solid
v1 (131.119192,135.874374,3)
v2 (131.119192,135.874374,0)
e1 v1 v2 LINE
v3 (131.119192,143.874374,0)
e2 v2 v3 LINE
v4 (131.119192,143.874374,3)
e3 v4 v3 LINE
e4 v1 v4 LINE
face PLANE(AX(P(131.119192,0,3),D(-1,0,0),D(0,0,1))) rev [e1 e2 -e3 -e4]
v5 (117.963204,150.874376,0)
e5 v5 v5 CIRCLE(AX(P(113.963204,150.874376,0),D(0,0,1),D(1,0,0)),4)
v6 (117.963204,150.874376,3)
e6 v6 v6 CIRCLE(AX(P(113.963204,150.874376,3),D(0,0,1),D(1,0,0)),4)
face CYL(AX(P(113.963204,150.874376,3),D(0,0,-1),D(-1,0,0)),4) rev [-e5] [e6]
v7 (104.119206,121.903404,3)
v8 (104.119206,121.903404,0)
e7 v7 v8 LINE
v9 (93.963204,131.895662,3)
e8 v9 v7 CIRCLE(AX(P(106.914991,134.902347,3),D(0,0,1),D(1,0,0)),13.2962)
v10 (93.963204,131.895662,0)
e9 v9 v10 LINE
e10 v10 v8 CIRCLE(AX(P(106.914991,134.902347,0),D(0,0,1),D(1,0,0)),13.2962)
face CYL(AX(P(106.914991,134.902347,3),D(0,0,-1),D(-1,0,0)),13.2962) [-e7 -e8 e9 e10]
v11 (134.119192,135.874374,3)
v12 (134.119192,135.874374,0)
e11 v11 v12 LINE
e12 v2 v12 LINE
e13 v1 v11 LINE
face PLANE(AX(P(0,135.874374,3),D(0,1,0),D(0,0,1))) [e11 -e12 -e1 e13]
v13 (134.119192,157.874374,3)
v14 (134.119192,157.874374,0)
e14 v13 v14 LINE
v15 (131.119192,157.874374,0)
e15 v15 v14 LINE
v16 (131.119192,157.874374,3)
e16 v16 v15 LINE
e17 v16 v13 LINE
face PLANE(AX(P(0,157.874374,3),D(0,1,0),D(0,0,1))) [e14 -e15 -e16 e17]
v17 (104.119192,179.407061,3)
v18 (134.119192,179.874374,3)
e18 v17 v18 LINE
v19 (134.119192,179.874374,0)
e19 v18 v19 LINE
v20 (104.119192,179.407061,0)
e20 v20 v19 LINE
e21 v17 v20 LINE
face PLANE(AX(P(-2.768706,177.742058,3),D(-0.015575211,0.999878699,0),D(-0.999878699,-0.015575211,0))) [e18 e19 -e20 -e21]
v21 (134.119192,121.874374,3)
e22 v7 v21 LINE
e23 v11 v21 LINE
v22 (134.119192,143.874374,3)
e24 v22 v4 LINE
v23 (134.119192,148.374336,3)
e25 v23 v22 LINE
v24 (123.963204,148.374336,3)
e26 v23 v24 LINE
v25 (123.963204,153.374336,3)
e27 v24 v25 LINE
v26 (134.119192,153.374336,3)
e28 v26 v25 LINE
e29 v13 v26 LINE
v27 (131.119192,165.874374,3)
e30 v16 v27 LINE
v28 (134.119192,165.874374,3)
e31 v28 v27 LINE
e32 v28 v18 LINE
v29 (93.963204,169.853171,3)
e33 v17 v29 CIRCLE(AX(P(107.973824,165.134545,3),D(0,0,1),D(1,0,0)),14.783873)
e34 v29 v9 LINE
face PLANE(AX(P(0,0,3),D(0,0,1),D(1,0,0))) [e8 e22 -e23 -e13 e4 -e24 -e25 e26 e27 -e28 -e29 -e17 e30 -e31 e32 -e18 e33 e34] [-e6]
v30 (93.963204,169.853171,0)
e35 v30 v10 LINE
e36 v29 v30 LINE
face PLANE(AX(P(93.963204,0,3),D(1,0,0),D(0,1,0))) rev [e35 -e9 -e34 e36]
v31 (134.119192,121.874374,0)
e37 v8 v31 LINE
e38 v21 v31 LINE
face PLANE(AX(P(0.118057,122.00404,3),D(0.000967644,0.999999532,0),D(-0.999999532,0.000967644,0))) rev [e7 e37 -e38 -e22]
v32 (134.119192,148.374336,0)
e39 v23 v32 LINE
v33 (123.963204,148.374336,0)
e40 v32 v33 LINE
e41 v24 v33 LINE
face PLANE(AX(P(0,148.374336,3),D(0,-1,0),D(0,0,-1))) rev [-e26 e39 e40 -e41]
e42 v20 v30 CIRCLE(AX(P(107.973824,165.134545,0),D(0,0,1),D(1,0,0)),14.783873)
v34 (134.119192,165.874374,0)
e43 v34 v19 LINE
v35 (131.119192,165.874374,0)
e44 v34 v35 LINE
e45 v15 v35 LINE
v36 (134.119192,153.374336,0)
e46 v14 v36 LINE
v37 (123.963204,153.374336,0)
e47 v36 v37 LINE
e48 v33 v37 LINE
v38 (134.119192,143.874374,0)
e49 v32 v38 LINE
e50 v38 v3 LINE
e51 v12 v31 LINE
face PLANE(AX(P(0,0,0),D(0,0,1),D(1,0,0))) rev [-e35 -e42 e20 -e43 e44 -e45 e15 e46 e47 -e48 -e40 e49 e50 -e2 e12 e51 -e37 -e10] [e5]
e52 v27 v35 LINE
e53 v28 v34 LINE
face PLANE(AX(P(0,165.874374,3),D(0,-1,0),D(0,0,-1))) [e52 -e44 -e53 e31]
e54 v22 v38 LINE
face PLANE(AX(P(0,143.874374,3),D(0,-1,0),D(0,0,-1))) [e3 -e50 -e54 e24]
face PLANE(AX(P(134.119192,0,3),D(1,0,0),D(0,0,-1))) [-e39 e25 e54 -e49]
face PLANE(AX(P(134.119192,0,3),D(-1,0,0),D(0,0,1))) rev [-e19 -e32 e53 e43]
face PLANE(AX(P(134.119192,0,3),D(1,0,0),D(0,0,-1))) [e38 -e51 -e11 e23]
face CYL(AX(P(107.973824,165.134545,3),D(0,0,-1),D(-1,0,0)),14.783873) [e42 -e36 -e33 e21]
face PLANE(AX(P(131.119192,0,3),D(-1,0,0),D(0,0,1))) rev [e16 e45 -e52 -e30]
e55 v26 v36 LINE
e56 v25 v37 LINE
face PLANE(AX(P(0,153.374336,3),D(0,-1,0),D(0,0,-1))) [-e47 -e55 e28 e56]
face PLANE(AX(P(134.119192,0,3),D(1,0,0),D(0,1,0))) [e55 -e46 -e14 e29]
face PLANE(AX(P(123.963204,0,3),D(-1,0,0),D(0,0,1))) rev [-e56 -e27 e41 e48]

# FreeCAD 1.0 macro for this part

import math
import FreeCAD as App
import Part
import Sketcher

doc = App.newDocument("Part")
body = doc.addObject("PartDesign::Body", "Body")

sketch1 = doc.addObject("Sketcher::SketchObject", "Sketch")
body.addObject(sketch1)
sketch1.AttachmentSupport = (doc.XY_Plane, [""])
sketch1.MapMode = "FlatFace"
sketch1.addGeometry([
    Part.LineSegment(App.Vector(134.119192, 179.874374, 0), App.Vector(104.119192, 179.407061, 0)),
    Part.ArcOfCircle(Part.Circle(App.Vector(107.973824, 165.134545, 0), App.Vector(0, 0, 1), 14.783873), math.radians(105.113512), math.radians(161.387029)),
    Part.LineSegment(App.Vector(93.963204, 169.853171, 0), App.Vector(93.963204, 131.895662, 0)),
    Part.ArcOfCircle(Part.Circle(App.Vector(106.914991, 134.902347, 0), App.Vector(0, 0, 1), 13.2962), math.radians(-166.930595), math.radians(-102.138142)),
    Part.LineSegment(App.Vector(104.119206, 121.903404, 0), App.Vector(134.119192, 121.874374, 0)),
    Part.LineSegment(App.Vector(134.119192, 121.874374, 0), App.Vector(134.119192, 135.874374, 0)),
    Part.LineSegment(App.Vector(134.119192, 135.874374, 0), App.Vector(131.119192, 135.874374, 0)),
    Part.LineSegment(App.Vector(131.119192, 135.874374, 0), App.Vector(131.119192, 143.874374, 0)),
    Part.LineSegment(App.Vector(131.119192, 143.874374, 0), App.Vector(134.119192, 143.874374, 0)),
    Part.LineSegment(App.Vector(134.119192, 143.874374, 0), App.Vector(134.119192, 148.374336, 0)),
    Part.LineSegment(App.Vector(134.119192, 148.374336, 0), App.Vector(123.963204, 148.374336, 0)),
    Part.LineSegment(App.Vector(123.963204, 148.374336, 0), App.Vector(123.963204, 153.374336, 0)),
    Part.LineSegment(App.Vector(123.963204, 153.374336, 0), App.Vector(134.119192, 153.374336, 0)),
    Part.LineSegment(App.Vector(134.119192, 153.374336, 0), App.Vector(134.119192, 157.874374, 0)),
    Part.LineSegment(App.Vector(134.119192, 157.874374, 0), App.Vector(131.119192, 157.874374, 0)),
    Part.LineSegment(App.Vector(131.119192, 157.874374, 0), App.Vector(131.119192, 165.874374, 0)),
    Part.LineSegment(App.Vector(131.119192, 165.874374, 0), App.Vector(134.119192, 165.874374, 0)),
    Part.LineSegment(App.Vector(134.119192, 165.874374, 0), App.Vector(134.119192, 179.874374, 0)),
    Part.Circle(App.Vector(113.963204, 150.874376, 0), App.Vector(0, 0, 1), 4),
], False)
sketch1.addConstraint([
    Sketcher.Constraint("Coincident", 0, 2, 1, 1),
    Sketcher.Constraint("Coincident", 1, 2, 2, 1),
    Sketcher.Constraint("Coincident", 2, 2, 3, 1),
    Sketcher.Constraint("Coincident", 3, 2, 4, 1),
    Sketcher.Constraint("Coincident", 4, 2, 5, 1),
    Sketcher.Constraint("Coincident", 5, 2, 6, 1),
    Sketcher.Constraint("Coincident", 6, 2, 7, 1),
    Sketcher.Constraint("Coincident", 7, 2, 8, 1),
    Sketcher.Constraint("Coincident", 8, 2, 9, 1),
    Sketcher.Constraint("Coincident", 9, 2, 10, 1),
    Sketcher.Constraint("Coincident", 10, 2, 11, 1),
    Sketcher.Constraint("Coincident", 11, 2, 12, 1),
    Sketcher.Constraint("Coincident", 12, 2, 13, 1),
    Sketcher.Constraint("Coincident", 13, 2, 14, 1),
    Sketcher.Constraint("Coincident", 14, 2, 15, 1),
    Sketcher.Constraint("Coincident", 15, 2, 16, 1),
    Sketcher.Constraint("Coincident", 16, 2, 17, 1),
    Sketcher.Constraint("Coincident", 17, 2, 0, 1),
    Sketcher.Constraint("Vertical", 2),
    Sketcher.Constraint("Vertical", 5),
    Sketcher.Constraint("Horizontal", 6),
    Sketcher.Constraint("Vertical", 7),
    Sketcher.Constraint("Horizontal", 8),
    Sketcher.Constraint("Vertical", 9),
    Sketcher.Constraint("Horizontal", 10),
    Sketcher.Constraint("Vertical", 11),
    Sketcher.Constraint("Horizontal", 12),
    Sketcher.Constraint("Vertical", 13),
    Sketcher.Constraint("Horizontal", 14),
    Sketcher.Constraint("Vertical", 15),
    Sketcher.Constraint("Horizontal", 16),
    Sketcher.Constraint("Vertical", 17),
    Sketcher.Constraint("Vertical", 5, 2, 8, 2),
    Sketcher.Constraint("Vertical", 9, 2, 12, 2),
    Sketcher.Constraint("Vertical", 7, 2, 14, 2),
    Sketcher.Constraint("Vertical", 13, 2, 16, 2),
    Sketcher.Constraint("Equal", 7, 15),
    Sketcher.Constraint("Equal", 5, 17),
    Sketcher.Constraint("Diameter", 18, 8.0),
    Sketcher.Constraint("DistanceX", 6, 2, 6, 1, 3.0),
    Sketcher.Constraint("DistanceY", 5, 1, 5, 2, 14.0),
    Sketcher.Constraint("DistanceY", 7, 1, 7, 2, 8.0),
    Sketcher.Constraint("DistanceY", 11, 1, 11, 2, 5.0),
    Sketcher.Constraint("Distance", 4, 30.0),
    Sketcher.Constraint("DistanceX", 1, 2, 18, 3, 20.0),
    Sketcher.Constraint("DistanceY", 4, 2, 18, 3, 29.000002),
    Sketcher.Constraint("DistanceX", 18, 3, 10, 2, 10.0),
    Sketcher.Constraint("DistanceY", 8, 2, 13, 2, 14.0),
    Sketcher.Constraint("Radius", 3, 13.2962),
    Sketcher.Constraint("Radius", 1, 14.783873),
    Sketcher.Constraint("DistanceX", 10, 2, 10, 1, 10.155988),
    Sketcher.Constraint("DistanceY", 2, 2, 2, 1, 37.957509),
    Sketcher.Constraint("DistanceY", 9, 1, 9, 2, 4.499962),
    Sketcher.Constraint("DistanceX", 0, 2, 3, 3, 2.795798),
    Sketcher.Constraint("DistanceY", 2, 2, 0, 2, 47.5114),
    Sketcher.Constraint("DistanceX", 3, 3, 4, 2, 27.204202),
    Sketcher.Constraint("Distance", 0, 30.003639),
    Sketcher.Constraint("DistanceX", -1, 1, 3, 3, 106.914991),
    Sketcher.Constraint("DistanceY", -1, 1, 0, 2, 179.407061),
])
pad1 = doc.addObject("PartDesign::Pad", "Pad")
body.addObject(pad1)
pad1.Profile = sketch1
pad1.Length = 3

doc.recompute()
